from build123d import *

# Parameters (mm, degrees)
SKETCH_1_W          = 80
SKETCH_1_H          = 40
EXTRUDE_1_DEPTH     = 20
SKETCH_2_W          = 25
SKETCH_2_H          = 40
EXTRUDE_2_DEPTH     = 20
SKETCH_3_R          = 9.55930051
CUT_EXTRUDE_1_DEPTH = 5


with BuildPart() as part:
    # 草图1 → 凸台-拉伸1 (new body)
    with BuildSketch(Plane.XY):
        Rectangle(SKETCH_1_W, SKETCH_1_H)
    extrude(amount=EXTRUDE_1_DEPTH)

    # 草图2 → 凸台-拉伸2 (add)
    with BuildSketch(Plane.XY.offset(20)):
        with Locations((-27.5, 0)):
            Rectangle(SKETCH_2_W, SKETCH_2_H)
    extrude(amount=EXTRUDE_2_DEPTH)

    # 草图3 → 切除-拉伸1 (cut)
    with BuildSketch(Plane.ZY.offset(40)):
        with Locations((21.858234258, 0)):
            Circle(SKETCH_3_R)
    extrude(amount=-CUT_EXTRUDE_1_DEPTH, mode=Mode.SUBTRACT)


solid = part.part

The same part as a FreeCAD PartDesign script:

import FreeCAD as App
import Part
import Sketcher


def add_polygon(sketch, points):
    """Adds a closed chain of lines whose ends are joined by coincident constraints."""
    first, n = sketch.GeometryCount, len(points)
    for a, b in zip(points, points[1:] + points[:1]):
        sketch.addGeometry(Part.LineSegment(App.Vector(*a, 0), App.Vector(*b, 0)), False)
    for i in range(n):
        sketch.addConstraint(Sketcher.Constraint("Coincident", first + i, 2, first + (i + 1) % n, 1))

doc = App.newDocument("Part")
params = doc.addObject("Spreadsheet::Sheet", "Params")
for row, (alias, value) in enumerate([
    ("sketch1_width", "80 mm"),
    ("sketch1_height", "40 mm"),
    ("pad1_length", "20 mm"),
    ("sketch2_width", "25 mm"),
    ("sketch2_height", "40 mm"),
    ("pad2_length", "20 mm"),
    ("pocket1_length", "5 mm"),
], start=1):
    params.set(f"A{row}", alias)
    params.set(f"B{row}", "=" + value)
    params.setAlias(f"B{row}", alias)

body = doc.addObject("PartDesign::Body", "Body")

# Sketch on XY plane
sketch1 = doc.addObject("Sketcher::SketchObject", "Sketch")
body.addObject(sketch1)
sketch1.AttachmentSupport = (doc.XY_Plane, [""])
sketch1.MapMode = "FlatFace"
add_polygon(sketch1, [(-40, 20), (-40, -20), (40, -20), (40, 20)])  # lines 0-3
sketch1.addConstraint(Sketcher.Constraint("Vertical", 0))
sketch1.addConstraint(Sketcher.Constraint("Horizontal", 1))
sketch1.addConstraint(Sketcher.Constraint("Vertical", 2))
sketch1.addConstraint(Sketcher.Constraint("Horizontal", 3))
sketch1.addConstraint(Sketcher.Constraint("Symmetric", 0, 2, 2, 2, -1, 1))
sketch1.addConstraint(Sketcher.Constraint("DistanceX", 1, 1, 1, 2, 80.0))
sketch1.addConstraint(Sketcher.Constraint("DistanceY", 0, 2, 0, 1, 40.0))
sketch1.setExpression("Constraints[9]", "Params.sketch1_width")
sketch1.setExpression("Constraints[10]", "Params.sketch1_height")
pad1 = doc.addObject("PartDesign::Pad", "Pad")
body.addObject(pad1)
pad1.Profile = sketch1
pad1.setExpression("Length", "Params.pad1_length")

# Sketch on XY plane
sketch2 = doc.addObject("Sketcher::SketchObject", "Sketch001")
body.addObject(sketch2)
sketch2.AttachmentSupport = (doc.XY_Plane, [""])
sketch2.MapMode = "FlatFace"
sketch2.AttachmentOffset = App.Placement(App.Vector(0, 0, 20), App.Rotation())
add_polygon(sketch2, [(-40, 20), (-40, -20), (-15, -20), (-15, 20)])  # lines 0-3
sketch2.addConstraint(Sketcher.Constraint("Vertical", 0))
sketch2.addConstraint(Sketcher.Constraint("Horizontal", 1))
sketch2.addConstraint(Sketcher.Constraint("Vertical", 2))
sketch2.addConstraint(Sketcher.Constraint("Horizontal", 3))
sketch2.addConstraint(Sketcher.Constraint("DistanceX", 1, 1, 1, 2, 25.0))
sketch2.addConstraint(Sketcher.Constraint("DistanceY", 0, 2, 0, 1, 40.0))
sketch2.addConstraint(Sketcher.Constraint("DistanceX", 0, 2, -1, 1, 40.0))
sketch2.addConstraint(Sketcher.Constraint("DistanceY", 0, 2, -1, 1, 20.0))
sketch2.setExpression("Constraints[8]", "Params.sketch2_width")
sketch2.setExpression("Constraints[9]", "Params.sketch2_height")
pad2 = doc.addObject("PartDesign::Pad", "Pad001")
body.addObject(pad2)
pad2.Profile = sketch2
pad2.setExpression("Length", "Params.pad2_length")

# Sketch on YZ plane
sketch3 = doc.addObject("Sketcher::SketchObject", "Sketch002")
body.addObject(sketch3)
sketch3.AttachmentSupport = (doc.YZ_Plane, [""])
sketch3.MapMode = "FlatFace"
sketch3.AttachmentOffset = App.Placement(App.Vector(0, 0, -40), App.Rotation())
sketch3.addGeometry(Part.Circle(App.Vector(0, 22, 0), App.Vector(0, 0, 1), 10), False)
sketch3.addConstraint(Sketcher.Constraint("PointOnObject", 0, 3, -2))
sketch3.addConstraint(Sketcher.Constraint("Diameter", 0, 19.118601))
sketch3.addConstraint(Sketcher.Constraint("DistanceY", -1, 1, 0, 3, 21.858234))
pocket1 = doc.addObject("PartDesign::Pocket", "Pocket")
body.addObject(pocket1)
pocket1.Profile = sketch3
pocket1.setExpression("Length", "Params.pocket1_length")
pocket1.Reversed = True

doc.recompute()
